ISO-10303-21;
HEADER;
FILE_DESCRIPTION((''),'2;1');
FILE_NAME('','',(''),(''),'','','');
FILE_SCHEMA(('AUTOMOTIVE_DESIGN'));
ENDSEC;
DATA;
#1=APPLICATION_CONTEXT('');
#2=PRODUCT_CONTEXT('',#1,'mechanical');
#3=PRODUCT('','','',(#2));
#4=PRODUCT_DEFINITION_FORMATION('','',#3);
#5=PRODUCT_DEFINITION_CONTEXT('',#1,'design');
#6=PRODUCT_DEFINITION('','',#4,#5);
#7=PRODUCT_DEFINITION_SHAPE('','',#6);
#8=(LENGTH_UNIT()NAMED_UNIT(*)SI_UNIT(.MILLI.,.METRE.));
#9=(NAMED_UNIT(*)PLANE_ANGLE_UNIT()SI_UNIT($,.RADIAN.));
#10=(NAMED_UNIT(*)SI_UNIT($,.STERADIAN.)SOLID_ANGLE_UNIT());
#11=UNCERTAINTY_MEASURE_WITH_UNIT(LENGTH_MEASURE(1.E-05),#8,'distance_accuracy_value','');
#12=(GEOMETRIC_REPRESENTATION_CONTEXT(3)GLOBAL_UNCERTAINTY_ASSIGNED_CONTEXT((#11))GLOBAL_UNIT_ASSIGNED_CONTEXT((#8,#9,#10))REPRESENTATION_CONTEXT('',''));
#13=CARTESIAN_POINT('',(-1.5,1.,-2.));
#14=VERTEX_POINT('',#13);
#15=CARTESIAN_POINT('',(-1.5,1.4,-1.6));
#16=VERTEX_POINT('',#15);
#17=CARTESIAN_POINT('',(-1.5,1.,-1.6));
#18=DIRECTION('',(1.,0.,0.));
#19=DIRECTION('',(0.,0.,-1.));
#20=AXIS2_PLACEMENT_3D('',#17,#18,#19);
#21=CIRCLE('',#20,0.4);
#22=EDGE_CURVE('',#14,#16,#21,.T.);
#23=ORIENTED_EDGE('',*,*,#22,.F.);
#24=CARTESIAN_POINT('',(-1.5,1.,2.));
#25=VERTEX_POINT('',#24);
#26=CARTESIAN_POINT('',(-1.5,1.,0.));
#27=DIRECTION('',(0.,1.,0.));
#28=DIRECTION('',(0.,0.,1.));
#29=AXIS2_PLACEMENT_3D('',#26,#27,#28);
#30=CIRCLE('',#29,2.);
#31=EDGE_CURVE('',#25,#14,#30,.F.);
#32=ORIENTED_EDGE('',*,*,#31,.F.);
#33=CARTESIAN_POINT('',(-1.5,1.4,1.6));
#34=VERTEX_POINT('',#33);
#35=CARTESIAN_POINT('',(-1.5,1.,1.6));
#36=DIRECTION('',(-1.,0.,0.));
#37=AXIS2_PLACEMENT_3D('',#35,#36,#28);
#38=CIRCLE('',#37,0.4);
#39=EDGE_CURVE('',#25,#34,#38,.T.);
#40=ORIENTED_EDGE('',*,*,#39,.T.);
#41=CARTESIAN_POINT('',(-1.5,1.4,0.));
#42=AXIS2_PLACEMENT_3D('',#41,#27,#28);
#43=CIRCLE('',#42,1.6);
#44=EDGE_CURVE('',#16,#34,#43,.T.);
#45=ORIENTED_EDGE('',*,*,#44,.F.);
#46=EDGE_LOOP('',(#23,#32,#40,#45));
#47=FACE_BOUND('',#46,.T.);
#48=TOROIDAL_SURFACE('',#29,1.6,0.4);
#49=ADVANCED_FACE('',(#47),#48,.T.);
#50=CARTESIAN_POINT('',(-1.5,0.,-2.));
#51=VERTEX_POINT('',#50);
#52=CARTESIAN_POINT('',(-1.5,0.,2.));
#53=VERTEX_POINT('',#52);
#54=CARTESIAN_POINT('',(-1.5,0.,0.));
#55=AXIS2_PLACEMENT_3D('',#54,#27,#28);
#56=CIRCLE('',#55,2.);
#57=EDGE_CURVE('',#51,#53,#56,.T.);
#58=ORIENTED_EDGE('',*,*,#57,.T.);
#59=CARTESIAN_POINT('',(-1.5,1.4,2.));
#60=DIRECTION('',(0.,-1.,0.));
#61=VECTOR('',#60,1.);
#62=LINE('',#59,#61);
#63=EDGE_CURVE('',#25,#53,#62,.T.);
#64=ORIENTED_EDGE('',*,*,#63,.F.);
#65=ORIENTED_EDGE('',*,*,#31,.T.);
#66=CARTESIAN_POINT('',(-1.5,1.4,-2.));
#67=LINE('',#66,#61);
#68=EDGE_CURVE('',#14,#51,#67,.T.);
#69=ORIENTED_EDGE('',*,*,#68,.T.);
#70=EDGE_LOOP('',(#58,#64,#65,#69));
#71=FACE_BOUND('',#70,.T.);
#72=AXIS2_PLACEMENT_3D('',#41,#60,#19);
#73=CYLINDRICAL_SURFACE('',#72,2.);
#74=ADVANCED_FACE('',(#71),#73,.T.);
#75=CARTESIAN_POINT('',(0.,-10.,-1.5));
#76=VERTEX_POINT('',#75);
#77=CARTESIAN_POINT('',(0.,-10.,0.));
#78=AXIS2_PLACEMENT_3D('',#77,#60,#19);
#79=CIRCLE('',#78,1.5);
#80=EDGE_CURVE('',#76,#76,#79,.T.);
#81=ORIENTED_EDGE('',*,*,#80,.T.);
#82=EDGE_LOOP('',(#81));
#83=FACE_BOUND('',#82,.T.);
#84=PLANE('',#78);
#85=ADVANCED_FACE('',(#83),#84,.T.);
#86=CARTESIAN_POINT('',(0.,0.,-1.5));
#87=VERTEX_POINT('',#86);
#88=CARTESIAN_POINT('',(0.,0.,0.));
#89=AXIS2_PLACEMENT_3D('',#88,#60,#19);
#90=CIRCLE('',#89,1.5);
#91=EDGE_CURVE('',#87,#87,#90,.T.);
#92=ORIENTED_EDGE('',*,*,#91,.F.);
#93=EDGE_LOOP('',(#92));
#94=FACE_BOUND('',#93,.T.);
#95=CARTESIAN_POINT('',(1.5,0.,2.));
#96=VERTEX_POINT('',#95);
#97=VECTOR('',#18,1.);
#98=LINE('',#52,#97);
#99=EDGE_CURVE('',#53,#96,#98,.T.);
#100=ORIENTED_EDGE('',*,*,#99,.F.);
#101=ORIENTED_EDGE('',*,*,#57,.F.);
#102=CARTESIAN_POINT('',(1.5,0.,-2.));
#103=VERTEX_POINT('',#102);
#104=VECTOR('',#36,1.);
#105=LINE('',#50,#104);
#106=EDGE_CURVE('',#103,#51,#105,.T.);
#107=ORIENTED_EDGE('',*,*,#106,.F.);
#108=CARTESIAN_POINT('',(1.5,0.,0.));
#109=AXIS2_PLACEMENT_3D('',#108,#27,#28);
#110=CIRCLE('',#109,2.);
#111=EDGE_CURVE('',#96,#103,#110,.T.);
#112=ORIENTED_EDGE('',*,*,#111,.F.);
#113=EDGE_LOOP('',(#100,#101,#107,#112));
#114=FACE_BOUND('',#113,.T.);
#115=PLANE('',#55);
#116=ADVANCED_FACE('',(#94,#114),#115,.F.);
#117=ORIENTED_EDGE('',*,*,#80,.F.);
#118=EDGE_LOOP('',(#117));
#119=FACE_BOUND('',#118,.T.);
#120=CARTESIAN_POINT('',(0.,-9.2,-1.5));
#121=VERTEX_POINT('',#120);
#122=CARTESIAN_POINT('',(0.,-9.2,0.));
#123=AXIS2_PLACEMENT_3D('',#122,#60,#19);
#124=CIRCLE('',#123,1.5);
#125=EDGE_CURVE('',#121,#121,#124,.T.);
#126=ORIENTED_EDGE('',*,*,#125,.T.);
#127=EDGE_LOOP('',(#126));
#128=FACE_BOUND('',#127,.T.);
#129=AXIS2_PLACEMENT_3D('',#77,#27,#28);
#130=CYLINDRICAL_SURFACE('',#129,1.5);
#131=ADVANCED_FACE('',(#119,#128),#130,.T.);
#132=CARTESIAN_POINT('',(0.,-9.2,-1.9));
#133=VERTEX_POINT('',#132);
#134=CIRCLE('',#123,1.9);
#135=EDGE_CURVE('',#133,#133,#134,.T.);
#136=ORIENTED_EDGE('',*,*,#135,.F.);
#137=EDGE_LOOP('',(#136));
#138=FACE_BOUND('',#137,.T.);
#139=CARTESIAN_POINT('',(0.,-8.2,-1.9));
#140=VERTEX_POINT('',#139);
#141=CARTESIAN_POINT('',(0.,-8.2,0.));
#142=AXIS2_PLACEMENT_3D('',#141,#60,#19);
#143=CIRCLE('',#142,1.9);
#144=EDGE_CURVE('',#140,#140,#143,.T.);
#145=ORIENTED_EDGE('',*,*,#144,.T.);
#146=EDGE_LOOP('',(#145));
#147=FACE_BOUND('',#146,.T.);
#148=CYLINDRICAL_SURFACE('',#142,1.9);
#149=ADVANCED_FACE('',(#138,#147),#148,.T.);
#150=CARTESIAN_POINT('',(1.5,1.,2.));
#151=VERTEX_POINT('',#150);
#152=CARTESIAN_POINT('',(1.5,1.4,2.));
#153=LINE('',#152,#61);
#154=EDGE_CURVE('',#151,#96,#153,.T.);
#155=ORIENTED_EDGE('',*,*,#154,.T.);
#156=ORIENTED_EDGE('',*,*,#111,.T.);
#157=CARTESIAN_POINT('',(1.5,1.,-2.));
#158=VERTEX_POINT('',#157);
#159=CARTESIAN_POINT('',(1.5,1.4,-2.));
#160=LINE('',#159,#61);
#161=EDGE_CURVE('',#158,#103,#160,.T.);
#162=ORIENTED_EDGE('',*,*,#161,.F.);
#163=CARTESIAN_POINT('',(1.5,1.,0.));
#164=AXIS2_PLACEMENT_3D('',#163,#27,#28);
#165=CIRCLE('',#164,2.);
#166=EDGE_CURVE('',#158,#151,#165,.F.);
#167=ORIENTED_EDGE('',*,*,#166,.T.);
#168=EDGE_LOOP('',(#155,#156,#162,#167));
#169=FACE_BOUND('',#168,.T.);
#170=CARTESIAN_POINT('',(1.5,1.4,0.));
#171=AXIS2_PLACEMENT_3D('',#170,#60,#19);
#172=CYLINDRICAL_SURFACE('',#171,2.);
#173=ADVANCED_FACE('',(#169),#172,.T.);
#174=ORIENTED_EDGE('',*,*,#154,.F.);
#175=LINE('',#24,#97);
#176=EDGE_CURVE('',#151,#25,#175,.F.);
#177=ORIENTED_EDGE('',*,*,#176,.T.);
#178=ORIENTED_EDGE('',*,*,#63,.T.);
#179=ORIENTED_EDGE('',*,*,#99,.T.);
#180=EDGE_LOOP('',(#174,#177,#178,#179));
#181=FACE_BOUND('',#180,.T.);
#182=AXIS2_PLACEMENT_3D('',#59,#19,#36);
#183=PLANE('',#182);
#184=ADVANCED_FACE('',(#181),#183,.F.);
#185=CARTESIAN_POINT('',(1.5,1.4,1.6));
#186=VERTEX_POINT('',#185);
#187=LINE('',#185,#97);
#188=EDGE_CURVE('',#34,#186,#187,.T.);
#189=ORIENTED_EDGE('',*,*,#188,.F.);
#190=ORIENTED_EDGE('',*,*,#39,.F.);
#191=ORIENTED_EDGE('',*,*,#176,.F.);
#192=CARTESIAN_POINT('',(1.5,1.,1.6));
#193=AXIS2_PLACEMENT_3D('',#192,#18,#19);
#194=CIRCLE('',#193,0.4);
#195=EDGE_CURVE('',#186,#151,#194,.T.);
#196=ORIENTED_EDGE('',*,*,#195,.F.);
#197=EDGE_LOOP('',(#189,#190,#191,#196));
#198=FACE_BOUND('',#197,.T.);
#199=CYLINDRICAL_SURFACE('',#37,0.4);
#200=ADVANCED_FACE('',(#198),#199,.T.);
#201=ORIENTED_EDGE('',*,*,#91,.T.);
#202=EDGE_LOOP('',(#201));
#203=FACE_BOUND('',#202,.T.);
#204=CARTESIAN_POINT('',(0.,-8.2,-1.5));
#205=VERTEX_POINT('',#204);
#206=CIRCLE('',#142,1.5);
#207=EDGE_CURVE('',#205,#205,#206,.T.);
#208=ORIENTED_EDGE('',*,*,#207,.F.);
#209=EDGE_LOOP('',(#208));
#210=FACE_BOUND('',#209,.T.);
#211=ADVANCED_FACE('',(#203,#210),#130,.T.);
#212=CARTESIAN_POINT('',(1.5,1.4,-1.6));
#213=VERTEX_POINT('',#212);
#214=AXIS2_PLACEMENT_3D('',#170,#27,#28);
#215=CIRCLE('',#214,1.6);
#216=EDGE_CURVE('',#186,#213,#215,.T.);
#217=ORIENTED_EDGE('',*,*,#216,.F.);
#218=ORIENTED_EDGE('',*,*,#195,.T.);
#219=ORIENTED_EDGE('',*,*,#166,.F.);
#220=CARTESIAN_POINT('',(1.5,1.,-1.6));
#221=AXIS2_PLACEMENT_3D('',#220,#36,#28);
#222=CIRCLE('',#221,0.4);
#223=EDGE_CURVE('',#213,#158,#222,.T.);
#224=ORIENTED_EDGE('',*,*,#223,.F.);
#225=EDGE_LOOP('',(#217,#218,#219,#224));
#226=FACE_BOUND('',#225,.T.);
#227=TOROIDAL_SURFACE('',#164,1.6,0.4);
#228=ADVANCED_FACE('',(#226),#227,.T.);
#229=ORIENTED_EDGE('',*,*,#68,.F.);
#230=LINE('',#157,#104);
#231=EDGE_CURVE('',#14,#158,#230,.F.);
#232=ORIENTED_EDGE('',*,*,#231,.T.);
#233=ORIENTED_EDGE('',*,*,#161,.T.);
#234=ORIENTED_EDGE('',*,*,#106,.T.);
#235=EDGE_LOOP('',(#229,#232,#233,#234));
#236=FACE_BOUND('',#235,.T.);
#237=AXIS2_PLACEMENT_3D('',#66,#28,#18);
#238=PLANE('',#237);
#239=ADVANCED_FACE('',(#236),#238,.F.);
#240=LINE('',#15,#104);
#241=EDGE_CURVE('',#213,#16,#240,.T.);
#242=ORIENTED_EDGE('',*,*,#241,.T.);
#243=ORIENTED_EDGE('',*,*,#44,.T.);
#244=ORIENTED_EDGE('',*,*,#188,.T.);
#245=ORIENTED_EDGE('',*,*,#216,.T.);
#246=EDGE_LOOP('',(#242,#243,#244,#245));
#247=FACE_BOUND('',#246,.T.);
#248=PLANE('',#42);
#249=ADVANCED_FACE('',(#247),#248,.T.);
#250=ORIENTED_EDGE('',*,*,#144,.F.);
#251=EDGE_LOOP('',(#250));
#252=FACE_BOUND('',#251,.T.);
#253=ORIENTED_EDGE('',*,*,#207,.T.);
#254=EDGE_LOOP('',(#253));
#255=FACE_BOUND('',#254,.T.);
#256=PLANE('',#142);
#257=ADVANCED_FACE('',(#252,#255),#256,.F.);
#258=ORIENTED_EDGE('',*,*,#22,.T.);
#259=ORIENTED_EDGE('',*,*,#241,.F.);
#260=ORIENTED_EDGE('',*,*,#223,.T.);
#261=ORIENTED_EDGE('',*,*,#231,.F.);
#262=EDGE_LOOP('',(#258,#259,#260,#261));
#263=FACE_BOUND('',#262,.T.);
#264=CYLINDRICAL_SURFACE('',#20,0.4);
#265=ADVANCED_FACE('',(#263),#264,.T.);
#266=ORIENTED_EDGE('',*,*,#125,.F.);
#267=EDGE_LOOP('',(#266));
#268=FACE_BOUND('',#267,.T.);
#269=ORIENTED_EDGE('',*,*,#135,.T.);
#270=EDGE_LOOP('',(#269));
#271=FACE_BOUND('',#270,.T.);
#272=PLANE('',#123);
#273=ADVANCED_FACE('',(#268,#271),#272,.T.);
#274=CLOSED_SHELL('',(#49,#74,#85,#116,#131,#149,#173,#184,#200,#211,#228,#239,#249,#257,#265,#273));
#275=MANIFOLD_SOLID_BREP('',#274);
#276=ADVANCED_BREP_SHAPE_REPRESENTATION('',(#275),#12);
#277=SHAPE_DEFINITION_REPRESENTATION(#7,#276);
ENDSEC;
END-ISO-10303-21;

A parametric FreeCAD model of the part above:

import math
import FreeCAD as App
import Part
import Sketcher
Q = App.Units.Quantity


def edges_at(feature, points):
    """Names of the edges that pass closest to the given points."""
    edges = feature.Shape.Edges
    near = lambda p: min(range(len(edges)), key=lambda i: edges[i].distToShape(Part.Vertex(*p))[0])
    return sorted({f"Edge{near(p) + 1}" for p in points})

doc = App.newDocument("Part")
body = doc.addObject("PartDesign::Body", "Body")

# Sketch on XZ plane
sketch1 = doc.addObject("Sketcher::SketchObject", "Sketch")
body.addObject(sketch1)
sketch1.AttachmentSupport = (doc.XZ_Plane, [""])
sketch1.MapMode = "FlatFace"
sketch1.addGeometry(Part.LineSegment(App.Vector(1.5, -2, 0), App.Vector(-1.5, -2, 0)), False)
sketch1.addGeometry(Part.ArcOfCircle(Part.Circle(App.Vector(-1.5, 0, 0), App.Vector(0, 0, 1), 2), math.radians(90), math.radians(270)), False)
sketch1.addGeometry(Part.LineSegment(App.Vector(-1.5, 2, 0), App.Vector(1.5, 2, 0)), False)
sketch1.addGeometry(Part.ArcOfCircle(Part.Circle(App.Vector(1.5, 0, 0), App.Vector(0, 0, 1), 2), math.radians(-90), math.radians(90)), False)
sketch1.addConstraint(Sketcher.Constraint("Tangent", 0, 2, 1, 2))
sketch1.addConstraint(Sketcher.Constraint("Tangent", 1, 1, 2, 1))
sketch1.addConstraint(Sketcher.Constraint("Tangent", 2, 2, 3, 2))
sketch1.addConstraint(Sketcher.Constraint("Tangent", 3, 1, 0, 1))
sketch1.addConstraint(Sketcher.Constraint("Horizontal", 0))
sketch1.addConstraint(Sketcher.Constraint("Horizontal", 2))
sketch1.addConstraint(Sketcher.Constraint("Symmetric", 1, 3, 3, 3, -1, 1))
sketch1.addConstraint(Sketcher.Constraint("Radius", 1, Q("2 mm")))
sketch1.addConstraint(Sketcher.Constraint("DistanceX", 0, 2, 0, 1, Q("3 mm")))
pad1 = doc.addObject("PartDesign::Pad", "Pad")
body.addObject(pad1)
pad1.Profile = sketch1
pad1.Length = 1.4
pad1.Reversed = True

# Sketch on XZ plane
sketch2 = doc.addObject("Sketcher::SketchObject", "Sketch001")
body.addObject(sketch2)
sketch2.AttachmentSupport = (doc.XZ_Plane, [""])
sketch2.MapMode = "FlatFace"
sketch2.addGeometry(Part.Circle(App.Vector(0, 0, 0), App.Vector(0, 0, 1), 1.5), False)
sketch2.addConstraint(Sketcher.Constraint("Coincident", 0, 3, -1, 1))
sketch2.addConstraint(Sketcher.Constraint("Diameter", 0, Q("3 mm")))
pad2 = doc.addObject("PartDesign::Pad", "Pad001")
body.addObject(pad2)
pad2.Profile = sketch2
pad2.Length = 10

# Sketch on XZ plane
sketch3 = doc.addObject("Sketcher::SketchObject", "Sketch002")
body.addObject(sketch3)
sketch3.AttachmentSupport = (doc.XZ_Plane, [""])
sketch3.MapMode = "FlatFace"
sketch3.AttachmentOffset = App.Placement(App.Vector(0, 0, 9.2), App.Rotation())
sketch3.addGeometry(Part.Circle(App.Vector(0, 0, 0), App.Vector(0, 0, 1), 1.9), False)
sketch3.addConstraint(Sketcher.Constraint("Coincident", 0, 3, -1, 1))
sketch3.addConstraint(Sketcher.Constraint("Diameter", 0, Q("3.8 mm")))
pad3 = doc.addObject("PartDesign::Pad", "Pad002")
body.addObject(pad3)
pad3.Profile = sketch3
pad3.Length = 1
pad3.Reversed = True
doc.recompute()

fillet = doc.addObject("PartDesign::Fillet", "Fillet")
body.addObject(fillet)
fillet.Base = (pad3, edges_at(pad3, [
    (3.5, 1.4, 0),
    (0, 1.4, -2),
    (-3.5, 1.4, 0),
    (0, 1.4, 2),
]))
fillet.Radius = 0.4

doc.recompute()
